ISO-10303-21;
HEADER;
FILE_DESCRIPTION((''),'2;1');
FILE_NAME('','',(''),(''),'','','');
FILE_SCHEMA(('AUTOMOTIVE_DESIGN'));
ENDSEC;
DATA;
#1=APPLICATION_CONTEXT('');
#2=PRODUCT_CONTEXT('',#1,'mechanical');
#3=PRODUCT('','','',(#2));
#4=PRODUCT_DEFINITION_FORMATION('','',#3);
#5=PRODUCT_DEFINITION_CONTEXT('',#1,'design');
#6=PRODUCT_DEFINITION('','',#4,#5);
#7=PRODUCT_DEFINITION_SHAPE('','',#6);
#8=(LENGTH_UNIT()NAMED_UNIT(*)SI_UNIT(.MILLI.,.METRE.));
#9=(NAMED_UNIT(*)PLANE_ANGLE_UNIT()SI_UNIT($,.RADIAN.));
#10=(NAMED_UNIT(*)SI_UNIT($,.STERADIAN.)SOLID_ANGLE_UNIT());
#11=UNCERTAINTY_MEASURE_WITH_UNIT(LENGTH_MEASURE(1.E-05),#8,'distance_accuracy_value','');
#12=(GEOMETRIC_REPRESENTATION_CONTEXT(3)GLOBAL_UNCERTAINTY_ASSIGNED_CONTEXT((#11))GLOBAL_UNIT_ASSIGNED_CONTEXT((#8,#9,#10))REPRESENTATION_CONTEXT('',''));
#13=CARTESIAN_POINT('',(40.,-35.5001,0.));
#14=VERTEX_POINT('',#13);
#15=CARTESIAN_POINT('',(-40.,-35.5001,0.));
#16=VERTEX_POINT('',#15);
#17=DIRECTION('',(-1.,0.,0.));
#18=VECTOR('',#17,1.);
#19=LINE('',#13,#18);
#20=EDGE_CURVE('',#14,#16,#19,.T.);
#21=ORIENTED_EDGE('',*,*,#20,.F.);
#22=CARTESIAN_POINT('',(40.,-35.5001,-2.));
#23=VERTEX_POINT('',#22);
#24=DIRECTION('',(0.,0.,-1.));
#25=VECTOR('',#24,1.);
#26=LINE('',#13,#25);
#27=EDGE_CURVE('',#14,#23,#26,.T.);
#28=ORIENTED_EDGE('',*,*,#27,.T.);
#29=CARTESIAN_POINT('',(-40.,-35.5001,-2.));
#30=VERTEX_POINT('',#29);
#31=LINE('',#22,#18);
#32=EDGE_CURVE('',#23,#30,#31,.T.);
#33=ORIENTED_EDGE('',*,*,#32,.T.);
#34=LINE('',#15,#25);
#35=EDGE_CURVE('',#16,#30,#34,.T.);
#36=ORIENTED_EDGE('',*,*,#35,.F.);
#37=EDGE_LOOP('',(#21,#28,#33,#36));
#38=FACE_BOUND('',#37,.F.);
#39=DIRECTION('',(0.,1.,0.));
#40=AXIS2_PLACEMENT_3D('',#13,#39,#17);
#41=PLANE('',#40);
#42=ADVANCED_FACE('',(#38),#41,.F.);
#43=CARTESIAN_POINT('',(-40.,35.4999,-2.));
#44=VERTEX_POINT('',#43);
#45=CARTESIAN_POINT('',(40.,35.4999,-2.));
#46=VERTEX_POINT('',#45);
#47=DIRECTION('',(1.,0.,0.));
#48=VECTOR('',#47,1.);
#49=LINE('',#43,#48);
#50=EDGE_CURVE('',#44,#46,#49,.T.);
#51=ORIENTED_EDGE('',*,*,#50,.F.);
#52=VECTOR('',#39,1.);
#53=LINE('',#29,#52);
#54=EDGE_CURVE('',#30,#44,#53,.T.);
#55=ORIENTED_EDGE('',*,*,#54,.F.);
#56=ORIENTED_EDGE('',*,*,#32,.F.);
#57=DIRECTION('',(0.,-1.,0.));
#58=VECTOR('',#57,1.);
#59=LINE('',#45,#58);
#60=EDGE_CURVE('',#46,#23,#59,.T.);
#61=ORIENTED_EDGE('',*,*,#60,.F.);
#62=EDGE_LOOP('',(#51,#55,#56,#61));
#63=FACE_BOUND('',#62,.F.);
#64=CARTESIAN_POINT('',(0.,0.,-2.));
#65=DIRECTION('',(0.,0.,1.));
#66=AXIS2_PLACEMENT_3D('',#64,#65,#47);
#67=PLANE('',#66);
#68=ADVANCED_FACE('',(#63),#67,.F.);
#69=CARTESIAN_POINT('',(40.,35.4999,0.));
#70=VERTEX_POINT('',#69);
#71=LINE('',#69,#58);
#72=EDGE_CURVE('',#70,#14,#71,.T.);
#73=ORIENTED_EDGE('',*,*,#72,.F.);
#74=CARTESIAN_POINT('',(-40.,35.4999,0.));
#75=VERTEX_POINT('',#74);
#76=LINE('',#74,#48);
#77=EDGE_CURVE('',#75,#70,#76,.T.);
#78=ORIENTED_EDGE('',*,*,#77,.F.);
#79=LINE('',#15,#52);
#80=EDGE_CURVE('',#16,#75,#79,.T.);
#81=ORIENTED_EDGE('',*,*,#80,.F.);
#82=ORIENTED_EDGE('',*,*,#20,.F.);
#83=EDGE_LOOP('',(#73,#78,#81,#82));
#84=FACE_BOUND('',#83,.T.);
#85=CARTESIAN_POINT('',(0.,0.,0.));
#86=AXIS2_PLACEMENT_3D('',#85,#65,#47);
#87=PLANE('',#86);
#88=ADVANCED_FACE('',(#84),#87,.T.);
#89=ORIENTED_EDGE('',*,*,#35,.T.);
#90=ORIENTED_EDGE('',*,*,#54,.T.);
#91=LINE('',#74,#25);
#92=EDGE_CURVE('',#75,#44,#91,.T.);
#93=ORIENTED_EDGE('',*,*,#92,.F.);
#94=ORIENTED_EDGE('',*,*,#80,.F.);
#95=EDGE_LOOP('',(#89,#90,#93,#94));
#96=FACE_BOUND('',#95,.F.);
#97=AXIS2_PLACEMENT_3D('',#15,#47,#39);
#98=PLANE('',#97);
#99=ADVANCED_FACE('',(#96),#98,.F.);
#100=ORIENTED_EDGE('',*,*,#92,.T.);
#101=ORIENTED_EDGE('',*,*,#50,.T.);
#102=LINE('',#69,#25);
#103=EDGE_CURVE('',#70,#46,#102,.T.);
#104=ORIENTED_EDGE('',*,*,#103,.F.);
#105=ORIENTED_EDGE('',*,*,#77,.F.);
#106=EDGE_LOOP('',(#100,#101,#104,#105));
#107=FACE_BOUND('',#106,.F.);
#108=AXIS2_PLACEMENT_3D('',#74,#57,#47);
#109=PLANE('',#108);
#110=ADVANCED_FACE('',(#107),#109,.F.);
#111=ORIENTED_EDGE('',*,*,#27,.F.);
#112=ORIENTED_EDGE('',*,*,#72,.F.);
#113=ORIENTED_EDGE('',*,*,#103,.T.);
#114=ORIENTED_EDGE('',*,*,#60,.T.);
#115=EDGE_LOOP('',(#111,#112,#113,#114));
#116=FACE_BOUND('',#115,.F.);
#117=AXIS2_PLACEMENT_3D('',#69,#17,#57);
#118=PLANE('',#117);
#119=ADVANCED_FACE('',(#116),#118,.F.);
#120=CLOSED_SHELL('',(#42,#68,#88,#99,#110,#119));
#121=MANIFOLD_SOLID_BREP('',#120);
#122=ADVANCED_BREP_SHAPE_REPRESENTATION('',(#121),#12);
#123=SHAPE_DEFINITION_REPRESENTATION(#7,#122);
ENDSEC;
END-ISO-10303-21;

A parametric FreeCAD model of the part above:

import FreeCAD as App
import Part
import Sketcher

V = App.Vector
Q = App.Units.Quantity


def add_polygon(sketch, points):
    """Adds a closed chain of lines whose ends are joined by coincident constraints."""
    first, n = sketch.GeometryCount, len(points)
    for a, b in zip(points, points[1:] + points[:1]):
        sketch.addGeometry(Part.LineSegment(App.Vector(*a, 0), App.Vector(*b, 0)), False)
    for i in range(n):
        sketch.addConstraint(Sketcher.Constraint("Coincident", first + i, 2, first + (i + 1) % n, 1))

doc = App.newDocument("Part")
params = doc.addObject("Spreadsheet::Sheet", "Params")
for row, (alias, value) in enumerate([
    ("sketch1_width", "80 mm"),
    ("sketch1_height", "71 mm"),
    ("pad1_length", "2 mm"),
], start=1):
    params.set(f"A{row}", alias)
    params.set(f"B{row}", "=" + value)
    params.setAlias(f"B{row}", alias)

body = doc.addObject("PartDesign::Body", "Body")

sketch1 = body.newObject("Sketcher::SketchObject", "Sketch")
sketch1.AttachmentSupport = (doc.getObject("XY_Plane"), [""])
sketch1.MapMode = "FlatFace"
add_polygon(sketch1, [(40, 35), (-40, 35), (-40, -36), (40, -36)])
sketch1.addConstraint([
    Sketcher.Constraint("Horizontal", 0),
    Sketcher.Constraint("Vertical", 1),
    Sketcher.Constraint("Horizontal", 2),
    Sketcher.Constraint("Vertical", 3),
    Sketcher.Constraint("Symmetric", 0, 2, 2, 2, -1, 1),
    Sketcher.Constraint("DistanceX", 0, 2, 0, 1, Q("80 mm")),
    Sketcher.Constraint("DistanceY", 1, 2, 1, 1, Q("71 mm")),
])
sketch1.setExpression("Constraints[9]", "Params.sketch1_width")
sketch1.setExpression("Constraints[10]", "Params.sketch1_height")
pad1 = body.newObject("PartDesign::Pad", "Pad")
pad1.Profile = sketch1
pad1.setExpression("Length", "Params.pad1_length")
pad1.Reversed = True

doc.recompute()
